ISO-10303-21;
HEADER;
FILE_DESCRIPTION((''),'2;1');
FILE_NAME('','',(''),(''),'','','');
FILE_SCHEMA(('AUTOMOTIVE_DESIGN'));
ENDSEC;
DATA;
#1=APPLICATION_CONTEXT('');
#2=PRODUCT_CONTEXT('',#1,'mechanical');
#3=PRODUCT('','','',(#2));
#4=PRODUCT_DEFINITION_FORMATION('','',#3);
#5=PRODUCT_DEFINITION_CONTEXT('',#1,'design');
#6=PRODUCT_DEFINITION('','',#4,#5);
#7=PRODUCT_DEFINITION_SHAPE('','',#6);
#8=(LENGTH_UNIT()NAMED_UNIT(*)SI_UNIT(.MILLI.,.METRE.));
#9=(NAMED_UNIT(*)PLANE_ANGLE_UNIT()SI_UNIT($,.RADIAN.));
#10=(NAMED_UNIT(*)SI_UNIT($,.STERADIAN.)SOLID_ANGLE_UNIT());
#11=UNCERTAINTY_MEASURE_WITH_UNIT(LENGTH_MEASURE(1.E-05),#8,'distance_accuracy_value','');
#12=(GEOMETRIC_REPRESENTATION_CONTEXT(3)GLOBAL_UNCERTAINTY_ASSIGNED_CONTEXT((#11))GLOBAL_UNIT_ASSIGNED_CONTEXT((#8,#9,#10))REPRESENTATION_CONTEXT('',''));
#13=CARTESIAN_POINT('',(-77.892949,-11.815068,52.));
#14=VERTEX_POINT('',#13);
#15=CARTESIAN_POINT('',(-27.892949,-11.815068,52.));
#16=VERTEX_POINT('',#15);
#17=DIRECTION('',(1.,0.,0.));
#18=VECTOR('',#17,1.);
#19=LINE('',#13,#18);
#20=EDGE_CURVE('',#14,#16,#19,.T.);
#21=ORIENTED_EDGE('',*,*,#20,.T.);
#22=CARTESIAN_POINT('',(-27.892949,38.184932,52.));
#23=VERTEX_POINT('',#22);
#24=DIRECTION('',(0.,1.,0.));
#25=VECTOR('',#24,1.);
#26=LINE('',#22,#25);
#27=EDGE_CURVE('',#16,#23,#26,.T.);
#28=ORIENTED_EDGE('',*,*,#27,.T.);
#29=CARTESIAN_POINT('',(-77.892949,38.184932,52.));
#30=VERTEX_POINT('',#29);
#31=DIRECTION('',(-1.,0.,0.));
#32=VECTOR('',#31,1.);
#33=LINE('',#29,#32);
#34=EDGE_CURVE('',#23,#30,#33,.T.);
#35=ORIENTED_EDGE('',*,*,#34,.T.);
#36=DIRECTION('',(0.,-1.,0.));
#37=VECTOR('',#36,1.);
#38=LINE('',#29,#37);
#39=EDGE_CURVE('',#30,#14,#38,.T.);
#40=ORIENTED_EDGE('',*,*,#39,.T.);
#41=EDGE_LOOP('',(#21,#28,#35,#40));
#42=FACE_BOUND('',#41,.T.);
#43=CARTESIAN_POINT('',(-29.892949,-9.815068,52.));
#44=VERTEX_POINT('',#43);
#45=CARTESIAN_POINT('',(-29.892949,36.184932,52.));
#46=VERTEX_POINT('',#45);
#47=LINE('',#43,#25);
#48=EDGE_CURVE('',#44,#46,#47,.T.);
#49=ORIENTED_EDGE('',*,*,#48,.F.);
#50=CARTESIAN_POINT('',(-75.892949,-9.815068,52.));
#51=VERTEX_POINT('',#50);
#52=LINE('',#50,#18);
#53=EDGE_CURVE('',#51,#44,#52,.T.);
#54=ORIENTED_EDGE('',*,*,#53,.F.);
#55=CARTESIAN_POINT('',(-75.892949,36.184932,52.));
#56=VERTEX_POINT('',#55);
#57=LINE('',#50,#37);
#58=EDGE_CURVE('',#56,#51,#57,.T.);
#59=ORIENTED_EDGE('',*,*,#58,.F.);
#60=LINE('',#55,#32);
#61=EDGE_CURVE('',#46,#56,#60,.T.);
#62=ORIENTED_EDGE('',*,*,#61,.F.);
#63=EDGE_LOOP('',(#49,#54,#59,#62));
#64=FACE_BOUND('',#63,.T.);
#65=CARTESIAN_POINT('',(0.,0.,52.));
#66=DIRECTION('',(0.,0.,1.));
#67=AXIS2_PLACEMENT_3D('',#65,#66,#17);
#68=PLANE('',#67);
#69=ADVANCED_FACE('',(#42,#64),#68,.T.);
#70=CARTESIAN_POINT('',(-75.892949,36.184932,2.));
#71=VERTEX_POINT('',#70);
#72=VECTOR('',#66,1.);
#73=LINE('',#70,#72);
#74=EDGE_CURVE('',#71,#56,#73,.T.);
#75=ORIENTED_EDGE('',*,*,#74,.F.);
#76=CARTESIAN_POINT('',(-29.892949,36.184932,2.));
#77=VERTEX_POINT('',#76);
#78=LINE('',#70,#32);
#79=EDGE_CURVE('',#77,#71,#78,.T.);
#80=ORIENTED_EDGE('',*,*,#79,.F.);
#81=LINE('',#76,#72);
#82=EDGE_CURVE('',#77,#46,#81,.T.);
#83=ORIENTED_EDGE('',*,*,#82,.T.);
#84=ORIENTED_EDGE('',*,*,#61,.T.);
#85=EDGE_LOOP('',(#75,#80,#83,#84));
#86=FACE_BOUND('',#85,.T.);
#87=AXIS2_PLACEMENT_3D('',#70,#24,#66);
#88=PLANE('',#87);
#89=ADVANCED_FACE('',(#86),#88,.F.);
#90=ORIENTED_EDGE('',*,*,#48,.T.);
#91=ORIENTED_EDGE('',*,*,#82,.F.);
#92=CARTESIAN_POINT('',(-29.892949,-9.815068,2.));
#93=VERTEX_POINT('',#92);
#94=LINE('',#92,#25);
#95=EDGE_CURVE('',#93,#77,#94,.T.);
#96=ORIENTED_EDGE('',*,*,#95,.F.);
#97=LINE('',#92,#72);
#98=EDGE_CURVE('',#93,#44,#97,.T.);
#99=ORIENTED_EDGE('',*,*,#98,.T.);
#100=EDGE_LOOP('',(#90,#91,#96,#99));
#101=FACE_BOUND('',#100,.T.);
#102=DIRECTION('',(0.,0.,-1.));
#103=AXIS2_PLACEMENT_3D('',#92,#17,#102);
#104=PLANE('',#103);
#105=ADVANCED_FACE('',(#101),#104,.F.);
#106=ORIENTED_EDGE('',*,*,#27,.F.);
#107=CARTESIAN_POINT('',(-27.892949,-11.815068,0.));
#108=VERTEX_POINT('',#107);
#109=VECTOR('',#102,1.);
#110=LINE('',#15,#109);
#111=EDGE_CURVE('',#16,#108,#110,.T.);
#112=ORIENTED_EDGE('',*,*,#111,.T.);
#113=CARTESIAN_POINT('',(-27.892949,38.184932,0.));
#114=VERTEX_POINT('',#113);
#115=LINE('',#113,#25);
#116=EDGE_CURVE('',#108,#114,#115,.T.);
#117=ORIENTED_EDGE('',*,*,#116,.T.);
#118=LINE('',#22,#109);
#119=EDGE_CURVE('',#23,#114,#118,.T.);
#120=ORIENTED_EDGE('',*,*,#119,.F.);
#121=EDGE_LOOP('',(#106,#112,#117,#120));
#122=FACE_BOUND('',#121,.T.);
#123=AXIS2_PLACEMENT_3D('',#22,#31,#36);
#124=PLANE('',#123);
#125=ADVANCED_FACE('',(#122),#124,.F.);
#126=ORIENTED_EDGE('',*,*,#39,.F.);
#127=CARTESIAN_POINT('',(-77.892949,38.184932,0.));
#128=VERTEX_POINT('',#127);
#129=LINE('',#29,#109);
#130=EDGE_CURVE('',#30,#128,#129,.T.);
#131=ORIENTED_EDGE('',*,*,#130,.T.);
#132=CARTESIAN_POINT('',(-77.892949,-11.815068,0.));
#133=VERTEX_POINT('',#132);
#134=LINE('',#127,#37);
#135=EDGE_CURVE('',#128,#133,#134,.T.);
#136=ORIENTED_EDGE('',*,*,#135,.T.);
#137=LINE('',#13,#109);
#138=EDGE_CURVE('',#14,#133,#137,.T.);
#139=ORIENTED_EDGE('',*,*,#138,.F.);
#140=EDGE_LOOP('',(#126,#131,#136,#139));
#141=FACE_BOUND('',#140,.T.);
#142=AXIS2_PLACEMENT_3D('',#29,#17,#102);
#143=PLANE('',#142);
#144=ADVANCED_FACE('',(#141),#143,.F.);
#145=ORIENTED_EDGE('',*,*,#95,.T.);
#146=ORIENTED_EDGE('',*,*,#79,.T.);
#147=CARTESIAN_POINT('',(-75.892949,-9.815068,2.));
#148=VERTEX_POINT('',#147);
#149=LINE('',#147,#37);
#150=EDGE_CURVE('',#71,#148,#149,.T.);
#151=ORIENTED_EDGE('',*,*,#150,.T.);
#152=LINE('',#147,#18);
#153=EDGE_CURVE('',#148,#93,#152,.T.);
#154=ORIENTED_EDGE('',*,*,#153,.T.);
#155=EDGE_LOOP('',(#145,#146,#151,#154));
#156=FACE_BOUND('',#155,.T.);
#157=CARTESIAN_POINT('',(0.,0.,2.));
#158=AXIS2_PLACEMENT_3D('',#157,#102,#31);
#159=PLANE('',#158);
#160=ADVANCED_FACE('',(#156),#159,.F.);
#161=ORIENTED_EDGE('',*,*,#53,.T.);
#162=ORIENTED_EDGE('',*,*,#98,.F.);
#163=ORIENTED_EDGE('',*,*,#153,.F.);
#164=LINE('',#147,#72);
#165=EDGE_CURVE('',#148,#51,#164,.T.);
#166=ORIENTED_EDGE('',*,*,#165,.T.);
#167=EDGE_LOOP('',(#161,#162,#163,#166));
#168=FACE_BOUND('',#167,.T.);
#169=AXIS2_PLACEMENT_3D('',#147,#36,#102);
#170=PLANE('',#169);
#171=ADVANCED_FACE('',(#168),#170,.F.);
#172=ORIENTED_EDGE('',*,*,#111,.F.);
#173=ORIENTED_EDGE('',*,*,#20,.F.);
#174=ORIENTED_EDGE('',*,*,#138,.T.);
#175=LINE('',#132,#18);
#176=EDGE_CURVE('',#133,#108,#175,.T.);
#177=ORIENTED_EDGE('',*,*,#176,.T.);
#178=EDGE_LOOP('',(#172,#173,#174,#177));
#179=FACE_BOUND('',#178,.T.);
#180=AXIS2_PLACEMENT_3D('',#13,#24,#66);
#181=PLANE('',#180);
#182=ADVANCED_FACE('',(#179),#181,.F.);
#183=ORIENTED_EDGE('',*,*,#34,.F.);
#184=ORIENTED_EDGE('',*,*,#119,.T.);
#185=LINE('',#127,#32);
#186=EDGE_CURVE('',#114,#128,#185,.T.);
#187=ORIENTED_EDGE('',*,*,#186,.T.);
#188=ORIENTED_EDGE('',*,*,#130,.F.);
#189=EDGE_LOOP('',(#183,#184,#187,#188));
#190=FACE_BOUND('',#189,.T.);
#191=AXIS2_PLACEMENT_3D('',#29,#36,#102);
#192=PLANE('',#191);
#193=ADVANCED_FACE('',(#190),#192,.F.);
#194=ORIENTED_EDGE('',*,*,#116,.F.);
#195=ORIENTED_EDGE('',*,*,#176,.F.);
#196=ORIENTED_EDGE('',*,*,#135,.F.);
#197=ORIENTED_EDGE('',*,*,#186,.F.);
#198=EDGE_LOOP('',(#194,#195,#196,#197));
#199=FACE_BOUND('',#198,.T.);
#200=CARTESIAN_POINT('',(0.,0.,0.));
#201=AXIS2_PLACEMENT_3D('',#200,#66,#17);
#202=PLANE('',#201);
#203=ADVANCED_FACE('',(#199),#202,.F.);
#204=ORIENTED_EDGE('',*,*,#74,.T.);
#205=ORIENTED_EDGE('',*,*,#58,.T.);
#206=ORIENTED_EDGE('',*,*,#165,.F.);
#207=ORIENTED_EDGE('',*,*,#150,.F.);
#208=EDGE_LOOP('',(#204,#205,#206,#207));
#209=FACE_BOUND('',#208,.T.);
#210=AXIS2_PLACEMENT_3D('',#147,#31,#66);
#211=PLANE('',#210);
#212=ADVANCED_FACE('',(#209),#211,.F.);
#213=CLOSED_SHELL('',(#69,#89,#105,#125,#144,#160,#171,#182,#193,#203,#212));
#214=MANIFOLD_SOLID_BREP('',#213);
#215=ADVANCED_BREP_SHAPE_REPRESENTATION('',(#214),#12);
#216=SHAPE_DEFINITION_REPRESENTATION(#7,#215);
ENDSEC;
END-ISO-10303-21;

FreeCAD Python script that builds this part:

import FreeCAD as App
import Part
import Sketcher
from FreeCAD import Vector


def add_polygon(sketch, points):
    """Adds a closed chain of lines whose ends are joined by coincident constraints."""
    first, n = sketch.GeometryCount, len(points)
    for a, b in zip(points, points[1:] + points[:1]):
        sketch.addGeometry(Part.LineSegment(App.Vector(*a, 0), App.Vector(*b, 0)), False)
    for i in range(n):
        sketch.addConstraint(Sketcher.Constraint("Coincident", first + i, 2, first + (i + 1) % n, 1))

doc = App.newDocument("Part")
body = doc.addObject("PartDesign::Body", "Body")

sketch1 = body.newObject("Sketcher::SketchObject", "Sketch")
sketch1.AttachmentSupport = (doc.getObject("XY_Plane"), [""])
sketch1.MapMode = "FlatFace"
add_polygon(sketch1, [(-78, 38), (-78, -12), (-28, -12), (-28, 38)])
sketch1.addConstraint(Sketcher.Constraint("Vertical", 0))
sketch1.addConstraint(Sketcher.Constraint("Horizontal", 1))
sketch1.addConstraint(Sketcher.Constraint("Vertical", 2))
sketch1.addConstraint(Sketcher.Constraint("Horizontal", 3))
sketch1.addConstraint(Sketcher.Constraint("Equal", 3, 0))
sketch1.addConstraint(Sketcher.Constraint("DistanceX", 1, 1, 1, 2, 50.0))
sketch1.addConstraint(Sketcher.Constraint("DistanceX", 0, 2, -1, 1, 77.892949))
sketch1.addConstraint(Sketcher.Constraint("DistanceY", 0, 2, -1, 1, 11.815068))
pad1 = body.newObject("PartDesign::Pad", "Pad")
pad1.Profile = sketch1
pad1.Length = 52

sketch2 = body.newObject("Sketcher::SketchObject", "Sketch001")
sketch2.AttachmentSupport = (doc.getObject("XY_Plane"), [""])
sketch2.MapMode = "FlatFace"
sketch2.AttachmentOffset = App.Placement(Vector(0, 0, 52), App.Rotation())
add_polygon(sketch2, [(-76, 36), (-76, -10), (-30, -10), (-30, 36)])
sketch2.addConstraint(Sketcher.Constraint("Vertical", 0))
sketch2.addConstraint(Sketcher.Constraint("Horizontal", 1))
sketch2.addConstraint(Sketcher.Constraint("Vertical", 2))
sketch2.addConstraint(Sketcher.Constraint("Horizontal", 3))
sketch2.addConstraint(Sketcher.Constraint("Equal", 3, 0))
sketch2.addConstraint(Sketcher.Constraint("DistanceX", 1, 1, 1, 2, 46.0))
sketch2.addConstraint(Sketcher.Constraint("DistanceX", 0, 2, -1, 1, 75.892949))
sketch2.addConstraint(Sketcher.Constraint("DistanceY", 0, 2, -1, 1, 9.815068))
pocket1 = body.newObject("PartDesign::Pocket", "Pocket")
pocket1.Profile = sketch2
pocket1.Length = 50

doc.recompute()
